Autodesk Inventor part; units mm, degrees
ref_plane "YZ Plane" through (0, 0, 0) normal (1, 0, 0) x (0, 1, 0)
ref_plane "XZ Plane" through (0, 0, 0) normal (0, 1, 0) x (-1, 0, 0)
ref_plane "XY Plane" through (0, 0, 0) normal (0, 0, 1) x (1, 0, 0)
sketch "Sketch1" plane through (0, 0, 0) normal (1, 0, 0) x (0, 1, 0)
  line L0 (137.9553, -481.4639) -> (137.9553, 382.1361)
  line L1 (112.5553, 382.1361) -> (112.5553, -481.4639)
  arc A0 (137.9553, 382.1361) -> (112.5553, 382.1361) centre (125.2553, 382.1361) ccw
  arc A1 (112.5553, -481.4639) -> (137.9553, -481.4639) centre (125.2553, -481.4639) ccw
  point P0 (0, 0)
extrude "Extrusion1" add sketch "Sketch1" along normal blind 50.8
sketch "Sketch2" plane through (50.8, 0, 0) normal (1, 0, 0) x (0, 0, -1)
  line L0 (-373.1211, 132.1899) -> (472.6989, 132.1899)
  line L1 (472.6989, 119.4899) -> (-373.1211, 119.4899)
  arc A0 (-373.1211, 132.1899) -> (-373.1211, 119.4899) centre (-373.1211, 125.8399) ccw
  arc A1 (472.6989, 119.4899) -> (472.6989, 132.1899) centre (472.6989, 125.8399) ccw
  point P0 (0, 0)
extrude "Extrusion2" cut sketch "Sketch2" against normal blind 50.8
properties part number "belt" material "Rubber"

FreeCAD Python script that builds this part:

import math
import FreeCAD as App
import Part
import Sketcher

V = App.Vector
Q = App.Units.Quantity

doc = App.newDocument("Part")
params = doc.addObject("Spreadsheet::Sheet", "Params")
for row, (alias, value) in enumerate([
    ("sketch1_radius", "0.5 in"),
    ("sketch1_height", "34 in"),
    ("pad1_length", "2 in"),
    ("sketch2_radius", "0.25 in"),
    ("sketch2_height", "33.3 in"),
    ("pocket1_length", "2 in"),
], start=1):
    params.set(f"A{row}", alias)
    params.set(f"B{row}", "=" + value)
    params.setAlias(f"B{row}", alias)

body = doc.addObject("PartDesign::Body", "Body")

sketch1 = body.newObject("Sketcher::SketchObject", "Sketch")
sketch1.AttachmentSupport = (doc.getObject("YZ_Plane"), [""])
sketch1.MapMode = "FlatFace"
sketch1.addGeometry([
    Part.ArcOfCircle(Part.Circle(V(125, -481, 0), V(0, 0, 1), 13), math.radians(180), math.radians(360)),
    Part.LineSegment(V(138, -481, 0), V(138, 382, 0)),
    Part.ArcOfCircle(Part.Circle(V(125, 382, 0), V(0, 0, 1), 13), math.radians(0), math.radians(180)),
    Part.LineSegment(V(113, 382, 0), V(113, -481, 0)),
], False)
sketch1.addConstraint([
    Sketcher.Constraint("Tangent", 0, 2, 1, 1),
    Sketcher.Constraint("Tangent", 1, 2, 2, 1),
    Sketcher.Constraint("Tangent", 2, 2, 3, 1),
    Sketcher.Constraint("Tangent", 3, 2, 0, 1),
    Sketcher.Constraint("Vertical", 1),
    Sketcher.Constraint("Vertical", 3),
    Sketcher.Constraint("Radius", 0, Q("0.5 in")),
    Sketcher.Constraint("DistanceY", 1, 1, 1, 2, Q("34 in")),
    Sketcher.Constraint("DistanceX", -1, 1, 0, 3, Q("4.9313 in")),
    Sketcher.Constraint("DistanceY", 0, 3, -1, 1, Q("481.464 mm")),
])
sketch1.setExpression("Constraints[6]", "Params.sketch1_radius")
sketch1.setExpression("Constraints[7]", "Params.sketch1_height")
pad1 = body.newObject("PartDesign::Pad", "Pad")
pad1.Profile = sketch1
pad1.setExpression("Length", "Params.pad1_length")

sketch2 = body.newObject("Sketcher::SketchObject", "Sketch001")
sketch2.AttachmentSupport = (doc.getObject("YZ_Plane"), [""])
sketch2.MapMode = "FlatFace"
sketch2.AttachmentOffset = App.Placement(V(0, 0, 2 * 25.4), App.Rotation())
sketch2.addGeometry([
    Part.LineSegment(V(132, -473, 0), V(132, 373, 0)),
    Part.ArcOfCircle(Part.Circle(V(126, 373, 0), V(0, 0, 1), 6), math.radians(0), math.radians(180)),
    Part.LineSegment(V(119, 373, 0), V(119, -473, 0)),
    Part.ArcOfCircle(Part.Circle(V(126, -473, 0), V(0, 0, 1), 6), math.radians(180), math.radians(360)),
], False)
sketch2.addConstraint([
    Sketcher.Constraint("Tangent", 0, 2, 1, 1),
    Sketcher.Constraint("Tangent", 1, 2, 2, 1),
    Sketcher.Constraint("Tangent", 2, 2, 3, 1),
    Sketcher.Constraint("Tangent", 3, 2, 0, 1),
    Sketcher.Constraint("Vertical", 0),
    Sketcher.Constraint("Vertical", 2),
    Sketcher.Constraint("Radius", 1, Q("0.25 in")),
    Sketcher.Constraint("DistanceY", 0, 1, 0, 2, Q("33.3 in")),
    Sketcher.Constraint("DistanceY", -1, 1, 1, 3, Q("14.6898 in")),
    Sketcher.Constraint("DistanceX", -1, 1, 1, 3, Q("125.84 mm")),
])
sketch2.setExpression("Constraints[6]", "Params.sketch2_radius")
sketch2.setExpression("Constraints[7]", "Params.sketch2_height")
pocket1 = body.newObject("PartDesign::Pocket", "Pocket")
pocket1.Profile = sketch2
pocket1.setExpression("Length", "Params.pocket1_length")

doc.recompute()
